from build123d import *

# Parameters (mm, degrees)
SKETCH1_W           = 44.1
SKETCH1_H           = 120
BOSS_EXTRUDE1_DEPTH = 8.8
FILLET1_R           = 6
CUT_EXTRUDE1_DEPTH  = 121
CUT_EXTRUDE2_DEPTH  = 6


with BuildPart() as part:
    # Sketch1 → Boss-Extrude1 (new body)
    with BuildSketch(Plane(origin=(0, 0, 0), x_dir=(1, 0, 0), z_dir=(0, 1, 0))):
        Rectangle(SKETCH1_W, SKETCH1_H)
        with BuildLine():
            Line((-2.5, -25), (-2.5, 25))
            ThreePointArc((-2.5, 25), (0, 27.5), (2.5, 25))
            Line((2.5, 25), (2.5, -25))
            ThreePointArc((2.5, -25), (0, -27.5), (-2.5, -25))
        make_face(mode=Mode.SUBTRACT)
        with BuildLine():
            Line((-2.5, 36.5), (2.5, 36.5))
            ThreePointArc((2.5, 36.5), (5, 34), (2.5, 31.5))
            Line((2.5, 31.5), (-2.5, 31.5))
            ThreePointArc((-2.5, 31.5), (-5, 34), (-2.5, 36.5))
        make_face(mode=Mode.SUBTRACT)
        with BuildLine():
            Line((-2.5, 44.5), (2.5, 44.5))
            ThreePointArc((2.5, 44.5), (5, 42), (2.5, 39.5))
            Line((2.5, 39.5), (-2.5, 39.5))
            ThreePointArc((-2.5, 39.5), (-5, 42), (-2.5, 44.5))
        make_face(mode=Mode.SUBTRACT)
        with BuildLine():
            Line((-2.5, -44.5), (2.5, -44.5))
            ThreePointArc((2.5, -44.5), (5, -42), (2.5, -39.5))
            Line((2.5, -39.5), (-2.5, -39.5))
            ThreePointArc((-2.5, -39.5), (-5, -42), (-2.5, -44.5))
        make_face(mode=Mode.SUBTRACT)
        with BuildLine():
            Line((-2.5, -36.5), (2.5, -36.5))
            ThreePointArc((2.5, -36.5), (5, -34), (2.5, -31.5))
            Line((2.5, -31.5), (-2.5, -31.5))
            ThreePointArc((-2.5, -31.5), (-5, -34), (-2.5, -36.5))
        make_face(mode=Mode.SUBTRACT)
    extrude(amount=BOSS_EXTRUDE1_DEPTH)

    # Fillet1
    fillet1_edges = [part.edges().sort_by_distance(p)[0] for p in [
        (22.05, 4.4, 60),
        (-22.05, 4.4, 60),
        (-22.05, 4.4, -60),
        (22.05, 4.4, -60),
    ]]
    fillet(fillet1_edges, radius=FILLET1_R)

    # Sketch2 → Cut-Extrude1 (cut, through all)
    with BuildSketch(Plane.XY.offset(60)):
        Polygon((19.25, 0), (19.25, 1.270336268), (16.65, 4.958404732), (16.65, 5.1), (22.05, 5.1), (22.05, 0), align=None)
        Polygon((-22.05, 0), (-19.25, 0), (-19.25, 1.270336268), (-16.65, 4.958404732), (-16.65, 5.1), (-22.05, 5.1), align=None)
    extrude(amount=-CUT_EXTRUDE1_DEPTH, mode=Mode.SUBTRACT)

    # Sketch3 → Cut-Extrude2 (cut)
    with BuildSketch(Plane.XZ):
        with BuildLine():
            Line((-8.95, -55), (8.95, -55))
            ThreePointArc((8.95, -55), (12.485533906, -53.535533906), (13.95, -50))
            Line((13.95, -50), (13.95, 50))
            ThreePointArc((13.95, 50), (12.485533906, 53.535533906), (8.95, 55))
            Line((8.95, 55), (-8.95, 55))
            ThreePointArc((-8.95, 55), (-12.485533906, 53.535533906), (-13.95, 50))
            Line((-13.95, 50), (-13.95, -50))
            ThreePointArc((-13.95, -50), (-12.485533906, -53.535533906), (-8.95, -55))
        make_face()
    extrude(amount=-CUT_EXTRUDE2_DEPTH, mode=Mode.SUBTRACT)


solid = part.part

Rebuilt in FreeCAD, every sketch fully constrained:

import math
import FreeCAD as App
import Part
import Sketcher

V = App.Vector


def edges_at(feature, points):
    """Names of the edges that pass closest to the given points."""
    edges = feature.Shape.Edges
    near = lambda p: min(range(len(edges)), key=lambda i: edges[i].distToShape(Part.Vertex(*p))[0])
    return sorted({f"Edge{near(p) + 1}" for p in points})

doc = App.newDocument("Part")
body = doc.addObject("PartDesign::Body", "Body")

# Sketch on XZ plane
sketch1 = body.newObject("Sketcher::SketchObject", "Sketch")
sketch1.AttachmentSupport = (doc.getObject("XZ_Plane"), [""])
sketch1.MapMode = "FlatFace"
sketch1.addGeometry(Part.LineSegment(V(-22.05, -60, 0), V(-22.05, 60, 0)), False)
sketch1.addGeometry(Part.LineSegment(V(-22.05, 60, 0), V(22.05, 60, 0)), False)
sketch1.addGeometry(Part.LineSegment(V(22.05, 60, 0), V(22.05, -60, 0)), False)
sketch1.addGeometry(Part.LineSegment(V(22.05, -60, 0), V(-22.05, -60, 0)), False)
sketch1.addGeometry(Part.LineSegment(V(2.5, 44.5, 0), V(-2.5, 44.5, 0)), False)
sketch1.addGeometry(Part.ArcOfCircle(Part.Circle(V(-2.5, 42, 0), V(0, 0, 1), 2.5), math.radians(90), math.radians(270)), False)
sketch1.addGeometry(Part.LineSegment(V(-2.5, 39.5, 0), V(2.5, 39.5, 0)), False)
sketch1.addGeometry(Part.ArcOfCircle(Part.Circle(V(2.5, 42, 0), V(0, 0, 1), 2.5), math.radians(-90), math.radians(90)), False)
sketch1.addGeometry(Part.LineSegment(V(2.5, 36.5, 0), V(-2.5, 36.5, 0)), False)
sketch1.addGeometry(Part.ArcOfCircle(Part.Circle(V(-2.5, 34, 0), V(0, 0, 1), 2.5), math.radians(90), math.radians(270)), False)
sketch1.addGeometry(Part.LineSegment(V(-2.5, 31.5, 0), V(2.5, 31.5, 0)), False)
sketch1.addGeometry(Part.ArcOfCircle(Part.Circle(V(2.5, 34, 0), V(0, 0, 1), 2.5), math.radians(-90), math.radians(90)), False)
sketch1.addGeometry(Part.ArcOfCircle(Part.Circle(V(0, 25, 0), V(0, 0, 1), 2.5), math.radians(0), math.radians(180)), False)
sketch1.addGeometry(Part.LineSegment(V(-2.5, 25, 0), V(-2.5, -25, 0)), False)
sketch1.addGeometry(Part.ArcOfCircle(Part.Circle(V(0, -25, 0), V(0, 0, 1), 2.5), math.radians(180), math.radians(360)), False)
sketch1.addGeometry(Part.LineSegment(V(2.5, -25, 0), V(2.5, 25, 0)), False)
sketch1.addGeometry(Part.ArcOfCircle(Part.Circle(V(-2.5, -34, 0), V(0, 0, 1), 2.5), math.radians(90), math.radians(270)), False)
sketch1.addGeometry(Part.LineSegment(V(-2.5, -36.5, 0), V(2.5, -36.5, 0)), False)
sketch1.addGeometry(Part.ArcOfCircle(Part.Circle(V(2.5, -34, 0), V(0, 0, 1), 2.5), math.radians(-90), math.radians(90)), False)
sketch1.addGeometry(Part.LineSegment(V(2.5, -31.5, 0), V(-2.5, -31.5, 0)), False)
sketch1.addGeometry(Part.ArcOfCircle(Part.Circle(V(-2.5, -42, 0), V(0, 0, 1), 2.5), math.radians(90), math.radians(270)), False)
sketch1.addGeometry(Part.LineSegment(V(-2.5, -44.5, 0), V(2.5, -44.5, 0)), False)
sketch1.addGeometry(Part.ArcOfCircle(Part.Circle(V(2.5, -42, 0), V(0, 0, 1), 2.5), math.radians(-90), math.radians(90)), False)
sketch1.addGeometry(Part.LineSegment(V(2.5, -39.5, 0), V(-2.5, -39.5, 0)), False)
sketch1.addConstraint(Sketcher.Constraint("Coincident", 0, 2, 1, 1))
sketch1.addConstraint(Sketcher.Constraint("Coincident", 1, 2, 2, 1))
sketch1.addConstraint(Sketcher.Constraint("Coincident", 2, 2, 3, 1))
sketch1.addConstraint(Sketcher.Constraint("Coincident", 3, 2, 0, 1))
sketch1.addConstraint(Sketcher.Constraint("Tangent", 4, 2, 5, 1))
sketch1.addConstraint(Sketcher.Constraint("Tangent", 5, 2, 6, 1))
sketch1.addConstraint(Sketcher.Constraint("Tangent", 6, 2, 7, 1))
sketch1.addConstraint(Sketcher.Constraint("Tangent", 7, 2, 4, 1))
sketch1.addConstraint(Sketcher.Constraint("Tangent", 8, 2, 9, 1))
sketch1.addConstraint(Sketcher.Constraint("Tangent", 9, 2, 10, 1))
sketch1.addConstraint(Sketcher.Constraint("Tangent", 10, 2, 11, 1))
sketch1.addConstraint(Sketcher.Constraint("Tangent", 11, 2, 8, 1))
sketch1.addConstraint(Sketcher.Constraint("Tangent", 12, 2, 13, 1))
sketch1.addConstraint(Sketcher.Constraint("Tangent", 13, 2, 14, 1))
sketch1.addConstraint(Sketcher.Constraint("Tangent", 14, 2, 15, 1))
sketch1.addConstraint(Sketcher.Constraint("Tangent", 15, 2, 12, 1))
sketch1.addConstraint(Sketcher.Constraint("Tangent", 16, 2, 17, 1))
sketch1.addConstraint(Sketcher.Constraint("Tangent", 17, 2, 18, 1))
sketch1.addConstraint(Sketcher.Constraint("Tangent", 18, 2, 19, 1))
sketch1.addConstraint(Sketcher.Constraint("Tangent", 19, 2, 16, 1))
sketch1.addConstraint(Sketcher.Constraint("Tangent", 20, 2, 21, 1))
sketch1.addConstraint(Sketcher.Constraint("Tangent", 21, 2, 22, 1))
sketch1.addConstraint(Sketcher.Constraint("Tangent", 22, 2, 23, 1))
sketch1.addConstraint(Sketcher.Constraint("Tangent", 23, 2, 20, 1))
sketch1.addConstraint(Sketcher.Constraint("Vertical", 0))
sketch1.addConstraint(Sketcher.Constraint("Horizontal", 1))
sketch1.addConstraint(Sketcher.Constraint("Vertical", 2))
sketch1.addConstraint(Sketcher.Constraint("Horizontal", 3))
sketch1.addConstraint(Sketcher.Constraint("Horizontal", 4))
sketch1.addConstraint(Sketcher.Constraint("Horizontal", 6))
sketch1.addConstraint(Sketcher.Constraint("Horizontal", 8))
sketch1.addConstraint(Sketcher.Constraint("Horizontal", 10))
sketch1.addConstraint(Sketcher.Constraint("Vertical", 13))
sketch1.addConstraint(Sketcher.Constraint("Vertical", 15))
sketch1.addConstraint(Sketcher.Constraint("Horizontal", 17))
sketch1.addConstraint(Sketcher.Constraint("Horizontal", 19))
sketch1.addConstraint(Sketcher.Constraint("Horizontal", 21))
sketch1.addConstraint(Sketcher.Constraint("Horizontal", 23))
sketch1.addConstraint(Sketcher.Constraint("Equal", 7, 9))
sketch1.addConstraint(Sketcher.Constraint("Equal", 11, 12))
sketch1.addConstraint(Sketcher.Constraint("Equal", 14, 16))
sketch1.addConstraint(Sketcher.Constraint("Equal", 18, 20))
sketch1.addConstraint(Sketcher.Constraint("Symmetric", 12, 3, 14, 3, -1, 1))
sketch1.addConstraint(Sketcher.Constraint("Symmetric", 11, 3, 16, 3, -1, 1))
sketch1.addConstraint(Sketcher.Constraint("Symmetric", 7, 3, 20, 3, -1, 1))
sketch1.addConstraint(Sketcher.Constraint("Symmetric", 0, 2, 2, 2, -1, 1))
sketch1.addConstraint(Sketcher.Constraint("Vertical", 5, 3, 9, 3))
sketch1.addConstraint(Sketcher.Constraint("Vertical", 7, 3, 11, 3))
sketch1.addConstraint(Sketcher.Constraint("Vertical", 9, 3, 16, 3))
sketch1.addConstraint(Sketcher.Constraint("Vertical", 11, 3, 18, 3))
sketch1.addConstraint(Sketcher.Constraint("Vertical", 18, 3, 22, 3))
sketch1.addConstraint(Sketcher.Constraint("Vertical", 9, 2, 12, 2))
sketch1.addConstraint(Sketcher.Constraint("Radius", 5, 2.5))
sketch1.addConstraint(Sketcher.Constraint("DistanceY", 0, 1, 0, 2, 120.0))
sketch1.addConstraint(Sketcher.Constraint("DistanceY", 13, 2, 13, 1, 50.0))
sketch1.addConstraint(Sketcher.Constraint("DistanceX", 1, 1, 1, 2, 44.1))
sketch1.addConstraint(Sketcher.Constraint("DistanceY", -1, 1, 5, 3, 42.0))
sketch1.addConstraint(Sketcher.Constraint("DistanceY", -1, 1, 9, 3, 34.0))
pad1 = body.newObject("PartDesign::Pad", "Pad")
pad1.Profile = sketch1
pad1.Length = 8.8
pad1.Reversed = True
doc.recompute()

fillet = body.newObject("PartDesign::Fillet", "Fillet")
fillet.Base = (pad1, edges_at(pad1, [
    (22.05, 4.4, 60),
    (-22.05, 4.4, 60),
    (-22.05, 4.4, -60),
    (22.05, 4.4, -60),
]))
fillet.Radius = 6

# Sketch on XY plane
sketch2 = body.newObject("Sketcher::SketchObject", "Sketch001")
sketch2.AttachmentSupport = (doc.getObject("XY_Plane"), [""])
sketch2.MapMode = "FlatFace"
sketch2.AttachmentOffset = App.Placement(V(0, 0, 60), App.Rotation())
sketch2.addGeometry(Part.LineSegment(V(19.25, 1.270336, 0), V(19.25, 0, 0)), False)
sketch2.addGeometry(Part.LineSegment(V(19.25, 0, 0), V(22.05, 0, 0)), False)
sketch2.addGeometry(Part.LineSegment(V(22.05, 0, 0), V(22.05, 5.1, 0)), False)
sketch2.addGeometry(Part.LineSegment(V(22.05, 5.1, 0), V(16.65, 5.1, 0)), False)
sketch2.addGeometry(Part.LineSegment(V(16.65, 5.1, 0), V(16.65, 4.958405, 0)), False)
sketch2.addGeometry(Part.LineSegment(V(16.65, 4.958405, 0), V(19.25, 1.270336, 0)), False)
sketch2.addGeometry(Part.LineSegment(V(-22.05, 0, 0), V(-19.25, 0, 0)), False)
sketch2.addGeometry(Part.LineSegment(V(-19.25, 0, 0), V(-19.25, 1.270336, 0)), False)
sketch2.addGeometry(Part.LineSegment(V(-19.25, 1.270336, 0), V(-16.65, 4.958405, 0)), False)
sketch2.addGeometry(Part.LineSegment(V(-16.65, 4.958405, 0), V(-16.65, 5.1, 0)), False)
sketch2.addGeometry(Part.LineSegment(V(-16.65, 5.1, 0), V(-22.05, 5.1, 0)), False)
sketch2.addGeometry(Part.LineSegment(V(-22.05, 5.1, 0), V(-22.05, 0, 0)), False)
sketch2.addConstraint(Sketcher.Constraint("Coincident", 0, 2, 1, 1))
sketch2.addConstraint(Sketcher.Constraint("Coincident", 1, 2, 2, 1))
sketch2.addConstraint(Sketcher.Constraint("Coincident", 2, 2, 3, 1))
sketch2.addConstraint(Sketcher.Constraint("Coincident", 3, 2, 4, 1))
sketch2.addConstraint(Sketcher.Constraint("Coincident", 4, 2, 5, 1))
sketch2.addConstraint(Sketcher.Constraint("Coincident", 5, 2, 0, 1))
sketch2.addConstraint(Sketcher.Constraint("Coincident", 6, 2, 7, 1))
sketch2.addConstraint(Sketcher.Constraint("Coincident", 7, 2, 8, 1))
sketch2.addConstraint(Sketcher.Constraint("Coincident", 8, 2, 9, 1))
sketch2.addConstraint(Sketcher.Constraint("Coincident", 9, 2, 10, 1))
sketch2.addConstraint(Sketcher.Constraint("Coincident", 10, 2, 11, 1))
sketch2.addConstraint(Sketcher.Constraint("Coincident", 11, 2, 6, 1))
sketch2.addConstraint(Sketcher.Constraint("Vertical", 0))
sketch2.addConstraint(Sketcher.Constraint("Horizontal", 1))
sketch2.addConstraint(Sketcher.Constraint("Vertical", 2))
sketch2.addConstraint(Sketcher.Constraint("Horizontal", 3))
sketch2.addConstraint(Sketcher.Constraint("Vertical", 4))
sketch2.addConstraint(Sketcher.Constraint("Horizontal", 6))
sketch2.addConstraint(Sketcher.Constraint("Vertical", 7))
sketch2.addConstraint(Sketcher.Constraint("Vertical", 9))
sketch2.addConstraint(Sketcher.Constraint("Horizontal", 10))
sketch2.addConstraint(Sketcher.Constraint("Vertical", 11))
sketch2.addConstraint(Sketcher.Constraint("Symmetric", 0, 2, 6, 2, -1, 1))
sketch2.addConstraint(Sketcher.Constraint("Symmetric", 4, 2, 8, 2, -2))
sketch2.addConstraint(Sketcher.Constraint("Symmetric", 2, 2, 10, 2, -2))
sketch2.addConstraint(Sketcher.Constraint("PointOnObject", 0, 2, -1))
sketch2.addConstraint(Sketcher.Constraint("Horizontal", 5, 2, 7, 2))
sketch2.addConstraint(Sketcher.Constraint("DistanceX", 1, 1, 1, 2, 2.8))
sketch2.addConstraint(Sketcher.Constraint("DistanceX", 3, 2, 3, 1, 5.4))
sketch2.addConstraint(Sketcher.Constraint("DistanceY", 2, 1, 2, 2, 5.1))
sketch2.addConstraint(Sketcher.Constraint("DistanceX", 6, 2, 4, 2, 35.9))
sketch2.addConstraint(Sketcher.Constraint("Distance", 5, 4.512411))
sketch2.addConstraint(Sketcher.Constraint("DistanceY", 0, 2, 0, 1, 1.270336))
pocket1 = body.newObject("PartDesign::Pocket", "Pocket")
pocket1.Profile = sketch2
pocket1.Type = "ThroughAll"

# Sketch on XZ plane
sketch3 = body.newObject("Sketcher::SketchObject", "Sketch002")
sketch3.AttachmentSupport = (doc.getObject("XZ_Plane"), [""])
sketch3.MapMode = "FlatFace"
sketch3.addGeometry(Part.LineSegment(V(-8.95, -55, 0), V(8.95, -55, 0)), False)
sketch3.addGeometry(Part.ArcOfCircle(Part.Circle(V(8.95, -50, 0), V(0, 0, 1), 5), math.radians(-90), math.radians(0)), False)
sketch3.addGeometry(Part.LineSegment(V(13.95, -50, 0), V(13.95, 50, 0)), False)
sketch3.addGeometry(Part.ArcOfCircle(Part.Circle(V(8.95, 50, 0), V(0, 0, 1), 5), math.radians(0), math.radians(90)), False)
sketch3.addGeometry(Part.LineSegment(V(8.95, 55, 0), V(-8.95, 55, 0)), False)
sketch3.addGeometry(Part.ArcOfCircle(Part.Circle(V(-8.95, 50, 0), V(0, 0, 1), 5), math.radians(90), math.radians(180)), False)
sketch3.addGeometry(Part.LineSegment(V(-13.95, 50, 0), V(-13.95, -50, 0)), False)
sketch3.addGeometry(Part.ArcOfCircle(Part.Circle(V(-8.95, -50, 0), V(0, 0, 1), 5), math.radians(180), math.radians(270)), False)
sketch3.addConstraint(Sketcher.Constraint("Tangent", 0, 2, 1, 1))
sketch3.addConstraint(Sketcher.Constraint("Tangent", 1, 2, 2, 1))
sketch3.addConstraint(Sketcher.Constraint("Tangent", 2, 2, 3, 1))
sketch3.addConstraint(Sketcher.Constraint("Tangent", 3, 2, 4, 1))
sketch3.addConstraint(Sketcher.Constraint("Tangent", 4, 2, 5, 1))
sketch3.addConstraint(Sketcher.Constraint("Tangent", 5, 2, 6, 1))
sketch3.addConstraint(Sketcher.Constraint("Tangent", 6, 2, 7, 1))
sketch3.addConstraint(Sketcher.Constraint("Tangent", 7, 2, 0, 1))
sketch3.addConstraint(Sketcher.Constraint("Horizontal", 0))
sketch3.addConstraint(Sketcher.Constraint("Vertical", 2))
sketch3.addConstraint(Sketcher.Constraint("Horizontal", 4))
sketch3.addConstraint(Sketcher.Constraint("Vertical", 6))
sketch3.addConstraint(Sketcher.Constraint("Equal", 1, 3))
sketch3.addConstraint(Sketcher.Constraint("Equal", 3, 5))
sketch3.addConstraint(Sketcher.Constraint("Equal", 5, 7))
sketch3.addConstraint(Sketcher.Constraint("Symmetric", 1, 3, 5, 3, -1, 1))
sketch3.addConstraint(Sketcher.Constraint("Radius", 1, 5.0))
sketch3.addConstraint(Sketcher.Constraint("DistanceY", 2, 1, 2, 2, 100.0))
sketch3.addConstraint(Sketcher.Constraint("DistanceX", 0, 1, 0, 2, 17.9))
pocket2 = body.newObject("PartDesign::Pocket", "Pocket001")
pocket2.Profile = sketch3
pocket2.Length = 6

doc.recompute()
